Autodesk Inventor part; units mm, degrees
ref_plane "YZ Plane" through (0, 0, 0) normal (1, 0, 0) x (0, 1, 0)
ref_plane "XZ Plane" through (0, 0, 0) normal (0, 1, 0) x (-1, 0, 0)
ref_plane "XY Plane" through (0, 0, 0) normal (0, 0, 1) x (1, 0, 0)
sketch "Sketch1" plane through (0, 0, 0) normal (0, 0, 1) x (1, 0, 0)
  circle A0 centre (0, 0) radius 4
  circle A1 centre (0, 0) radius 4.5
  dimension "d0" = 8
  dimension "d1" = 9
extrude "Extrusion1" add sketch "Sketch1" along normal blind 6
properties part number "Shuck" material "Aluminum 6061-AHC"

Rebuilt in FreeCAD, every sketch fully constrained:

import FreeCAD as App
import Part
import Sketcher

doc = App.newDocument("Part")
body = doc.addObject("PartDesign::Body", "Body")

sketch1 = body.newObject("Sketcher::SketchObject", "Sketch")
sketch1.AttachmentSupport = (doc.getObject("XY_Plane"), [""])
sketch1.MapMode = "FlatFace"
sketch1.addGeometry([
    Part.Circle(App.Vector(0, 0, 0), App.Vector(0, 0, 1), 4.5),
    Part.Circle(App.Vector(0, 0, 0), App.Vector(0, 0, 1), 4),
], False)
sketch1.addConstraint([
    Sketcher.Constraint("Coincident", 0, 3, -1, 1),
    Sketcher.Constraint("Coincident", 1, 3, -1, 1),
    Sketcher.Constraint("Diameter", 0, 9.0),
    Sketcher.Constraint("Diameter", 1, 8.0),
])
pad1 = body.newObject("PartDesign::Pad", "Pad")
pad1.Profile = sketch1
pad1.Length = 6

doc.recompute()
